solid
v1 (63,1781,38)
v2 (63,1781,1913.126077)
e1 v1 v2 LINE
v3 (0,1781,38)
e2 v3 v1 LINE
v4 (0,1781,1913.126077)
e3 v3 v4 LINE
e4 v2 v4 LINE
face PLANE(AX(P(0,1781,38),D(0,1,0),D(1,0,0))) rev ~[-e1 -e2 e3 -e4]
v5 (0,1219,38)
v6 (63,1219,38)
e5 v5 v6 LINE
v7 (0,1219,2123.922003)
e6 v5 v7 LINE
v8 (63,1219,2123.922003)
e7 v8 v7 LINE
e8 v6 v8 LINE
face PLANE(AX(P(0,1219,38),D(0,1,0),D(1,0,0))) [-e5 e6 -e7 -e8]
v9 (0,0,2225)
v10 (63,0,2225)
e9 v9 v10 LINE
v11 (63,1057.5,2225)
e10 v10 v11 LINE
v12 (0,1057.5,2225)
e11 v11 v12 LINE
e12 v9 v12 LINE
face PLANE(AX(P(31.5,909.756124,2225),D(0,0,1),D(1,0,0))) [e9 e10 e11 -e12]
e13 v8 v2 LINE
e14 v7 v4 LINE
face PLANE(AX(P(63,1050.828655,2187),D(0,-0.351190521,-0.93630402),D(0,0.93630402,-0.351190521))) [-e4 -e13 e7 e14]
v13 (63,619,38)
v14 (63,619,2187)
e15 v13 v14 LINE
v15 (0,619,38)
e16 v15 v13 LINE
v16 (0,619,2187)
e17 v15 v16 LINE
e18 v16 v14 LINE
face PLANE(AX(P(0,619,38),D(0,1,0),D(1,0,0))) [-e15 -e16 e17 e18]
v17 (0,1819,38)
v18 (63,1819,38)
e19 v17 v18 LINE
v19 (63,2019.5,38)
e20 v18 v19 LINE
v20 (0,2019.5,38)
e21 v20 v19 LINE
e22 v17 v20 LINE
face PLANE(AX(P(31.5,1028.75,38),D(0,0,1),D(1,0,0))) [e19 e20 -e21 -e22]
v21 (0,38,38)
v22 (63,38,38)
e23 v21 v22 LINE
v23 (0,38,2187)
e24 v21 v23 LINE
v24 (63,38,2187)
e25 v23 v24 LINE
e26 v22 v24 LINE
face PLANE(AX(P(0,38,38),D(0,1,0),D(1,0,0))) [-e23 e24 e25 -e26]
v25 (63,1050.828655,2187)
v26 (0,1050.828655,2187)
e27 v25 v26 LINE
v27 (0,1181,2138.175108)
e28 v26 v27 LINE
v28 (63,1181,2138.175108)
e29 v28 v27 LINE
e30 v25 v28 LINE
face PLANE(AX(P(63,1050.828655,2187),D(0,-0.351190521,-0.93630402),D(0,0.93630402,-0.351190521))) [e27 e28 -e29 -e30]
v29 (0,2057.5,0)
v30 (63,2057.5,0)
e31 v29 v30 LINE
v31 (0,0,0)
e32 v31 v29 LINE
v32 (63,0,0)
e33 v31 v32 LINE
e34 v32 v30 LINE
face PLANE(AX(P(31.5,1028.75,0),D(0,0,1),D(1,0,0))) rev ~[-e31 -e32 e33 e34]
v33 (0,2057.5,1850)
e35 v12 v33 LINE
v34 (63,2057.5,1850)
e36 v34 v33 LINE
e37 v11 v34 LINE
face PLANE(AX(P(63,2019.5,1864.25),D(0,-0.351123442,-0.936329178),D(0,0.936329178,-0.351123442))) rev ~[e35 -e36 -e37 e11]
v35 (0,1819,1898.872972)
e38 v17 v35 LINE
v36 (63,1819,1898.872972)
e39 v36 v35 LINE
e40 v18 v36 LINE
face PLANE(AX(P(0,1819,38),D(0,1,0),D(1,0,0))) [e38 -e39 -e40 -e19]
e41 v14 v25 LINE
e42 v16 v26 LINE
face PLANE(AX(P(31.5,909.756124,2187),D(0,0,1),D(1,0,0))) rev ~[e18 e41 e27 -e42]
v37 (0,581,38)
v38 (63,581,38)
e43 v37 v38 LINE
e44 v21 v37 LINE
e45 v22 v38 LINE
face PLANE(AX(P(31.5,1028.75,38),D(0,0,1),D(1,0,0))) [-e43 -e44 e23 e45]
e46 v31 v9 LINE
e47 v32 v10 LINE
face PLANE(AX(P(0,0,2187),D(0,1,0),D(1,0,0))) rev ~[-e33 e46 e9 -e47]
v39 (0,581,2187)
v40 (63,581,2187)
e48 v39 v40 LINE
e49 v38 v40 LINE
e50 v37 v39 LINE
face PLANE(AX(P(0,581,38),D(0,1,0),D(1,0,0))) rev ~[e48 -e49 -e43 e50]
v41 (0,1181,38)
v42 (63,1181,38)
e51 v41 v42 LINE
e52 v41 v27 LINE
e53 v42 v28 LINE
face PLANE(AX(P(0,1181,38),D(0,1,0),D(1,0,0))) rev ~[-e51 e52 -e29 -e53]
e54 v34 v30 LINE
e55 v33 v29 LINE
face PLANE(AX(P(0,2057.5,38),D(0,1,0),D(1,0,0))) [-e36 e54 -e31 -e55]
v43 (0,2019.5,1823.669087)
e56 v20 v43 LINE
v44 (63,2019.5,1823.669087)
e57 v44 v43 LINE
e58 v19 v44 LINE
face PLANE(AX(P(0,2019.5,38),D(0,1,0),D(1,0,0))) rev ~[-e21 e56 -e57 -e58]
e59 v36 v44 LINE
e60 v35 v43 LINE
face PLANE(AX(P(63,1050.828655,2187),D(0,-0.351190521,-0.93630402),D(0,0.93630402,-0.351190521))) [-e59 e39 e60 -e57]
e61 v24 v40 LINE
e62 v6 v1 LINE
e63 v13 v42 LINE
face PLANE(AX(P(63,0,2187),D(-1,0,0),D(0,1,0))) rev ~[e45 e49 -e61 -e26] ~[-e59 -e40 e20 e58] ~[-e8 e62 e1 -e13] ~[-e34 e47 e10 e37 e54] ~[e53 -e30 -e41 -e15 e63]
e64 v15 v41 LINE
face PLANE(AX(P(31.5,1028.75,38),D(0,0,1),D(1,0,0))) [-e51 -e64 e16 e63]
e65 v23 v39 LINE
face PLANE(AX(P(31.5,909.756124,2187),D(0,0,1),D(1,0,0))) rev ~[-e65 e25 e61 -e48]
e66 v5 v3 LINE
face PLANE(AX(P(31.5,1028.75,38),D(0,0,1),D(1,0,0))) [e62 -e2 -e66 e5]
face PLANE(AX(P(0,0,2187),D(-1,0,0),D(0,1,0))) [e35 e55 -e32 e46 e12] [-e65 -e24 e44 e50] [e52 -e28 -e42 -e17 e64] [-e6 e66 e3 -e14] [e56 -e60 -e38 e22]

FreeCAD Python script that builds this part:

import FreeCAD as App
import Part
import Sketcher
from FreeCAD import Vector


def add_polygon(sketch, points):
    """Adds a closed chain of lines whose ends are joined by coincident constraints."""
    first, n = sketch.GeometryCount, len(points)
    for a, b in zip(points, points[1:] + points[:1]):
        sketch.addGeometry(Part.LineSegment(App.Vector(*a, 0), App.Vector(*b, 0)), False)
    for i in range(n):
        sketch.addConstraint(Sketcher.Constraint("Coincident", first + i, 2, first + (i + 1) % n, 1))

doc = App.newDocument("Part")
body = doc.addObject("PartDesign::Body", "Body")

# Sketch on XY plane
sketch1 = body.newObject("Sketcher::SketchObject", "Sketch")
sketch1.AttachmentSupport = (doc.getObject("XY_Plane"), [""])
sketch1.MapMode = "FlatFace"
add_polygon(sketch1, [(0, 2058), (0, 0), (63, 0), (63, 2058)])  # lines 0-3
sketch1.addConstraint(Sketcher.Constraint("Vertical", 0))
sketch1.addConstraint(Sketcher.Constraint("Horizontal", 1))
sketch1.addConstraint(Sketcher.Constraint("Vertical", 2))
sketch1.addConstraint(Sketcher.Constraint("Horizontal", 3))
sketch1.addConstraint(Sketcher.Constraint("Coincident", 0, 2, -1, 1))
sketch1.addConstraint(Sketcher.Constraint("DistanceX", 1, 1, 1, 2, 63.0))
sketch1.addConstraint(Sketcher.Constraint("DistanceY", 0, 2, 0, 1, 2057.5))
pad1 = body.newObject("PartDesign::Pad", "Pad")
pad1.Profile = sketch1
pad1.Length = 38

# Sketch on XY plane
sketch2 = body.newObject("Sketcher::SketchObject", "Sketch001")
sketch2.AttachmentSupport = (doc.getObject("XY_Plane"), [""])
sketch2.MapMode = "FlatFace"
sketch2.AttachmentOffset = App.Placement(Vector(0, 0, 38), App.Rotation())
add_polygon(sketch2, [(0, 38), (0, 0), (63, 0), (63, 38)])  # lines 0-3
sketch2.addConstraint(Sketcher.Constraint("Vertical", 0))
sketch2.addConstraint(Sketcher.Constraint("Horizontal", 1))
sketch2.addConstraint(Sketcher.Constraint("Vertical", 2))
sketch2.addConstraint(Sketcher.Constraint("Horizontal", 3))
sketch2.addConstraint(Sketcher.Constraint("Coincident", 0, 2, -1, 1))
sketch2.addConstraint(Sketcher.Constraint("DistanceX", 1, 1, 1, 2, 63.0))
sketch2.addConstraint(Sketcher.Constraint("DistanceY", 0, 2, 0, 1, 38.0))
pad2 = body.newObject("PartDesign::Pad", "Pad001")
pad2.Profile = sketch2
pad2.Length = 2149

# Sketch on XY plane
sketch3 = body.newObject("Sketcher::SketchObject", "Sketch002")
sketch3.AttachmentSupport = (doc.getObject("XY_Plane"), [""])
sketch3.MapMode = "FlatFace"
sketch3.AttachmentOffset = App.Placement(Vector(0, 0, 38), App.Rotation())
add_polygon(sketch3, [(0, 619), (0, 581), (63, 581), (63, 619)])  # lines 0-3
sketch3.addConstraint(Sketcher.Constraint("Vertical", 0))
sketch3.addConstraint(Sketcher.Constraint("Horizontal", 1))
sketch3.addConstraint(Sketcher.Constraint("Vertical", 2))
sketch3.addConstraint(Sketcher.Constraint("Horizontal", 3))
sketch3.addConstraint(Sketcher.Constraint("PointOnObject", 0, 2, -2))
sketch3.addConstraint(Sketcher.Constraint("DistanceX", 1, 1, 1, 2, 63.0))
sketch3.addConstraint(Sketcher.Constraint("DistanceY", 0, 2, 0, 1, 38.0))
sketch3.addConstraint(Sketcher.Constraint("DistanceY", -1, 1, 0, 2, 581.0))
pad3 = body.newObject("PartDesign::Pad", "Pad002")
pad3.Profile = sketch3
pad3.Length = 2149

# Sketch on XY plane
sketch4 = body.newObject("Sketcher::SketchObject", "Sketch003")
sketch4.AttachmentSupport = (doc.getObject("XY_Plane"), [""])
sketch4.MapMode = "FlatFace"
sketch4.AttachmentOffset = App.Placement(Vector(0, 0, 38), App.Rotation())
add_polygon(sketch4, [(0, 1219), (0, 1181), (63, 1181), (63, 1219)])  # lines 0-3
sketch4.addConstraint(Sketcher.Constraint("Vertical", 0))
sketch4.addConstraint(Sketcher.Constraint("Horizontal", 1))
sketch4.addConstraint(Sketcher.Constraint("Vertical", 2))
sketch4.addConstraint(Sketcher.Constraint("Horizontal", 3))
sketch4.addConstraint(Sketcher.Constraint("PointOnObject", 0, 2, -2))
sketch4.addConstraint(Sketcher.Constraint("DistanceX", 1, 1, 1, 2, 63.0))
sketch4.addConstraint(Sketcher.Constraint("DistanceY", 0, 2, 0, 1, 38.0))
sketch4.addConstraint(Sketcher.Constraint("DistanceY", -1, 1, 0, 2, 1181.0))
pad4 = body.newObject("PartDesign::Pad", "Pad003")
pad4.Profile = sketch4
pad4.Length = 2149

# Sketch on XY plane
sketch5 = body.newObject("Sketcher::SketchObject", "Sketch004")
sketch5.AttachmentSupport = (doc.getObject("XY_Plane"), [""])
sketch5.MapMode = "FlatFace"
sketch5.AttachmentOffset = App.Placement(Vector(0, 0, 38), App.Rotation())
add_polygon(sketch5, [(0, 1819), (0, 1781), (63, 1781), (63, 1819)])  # lines 0-3
sketch5.addConstraint(Sketcher.Constraint("Vertical", 0))
sketch5.addConstraint(Sketcher.Constraint("Horizontal", 1))
sketch5.addConstraint(Sketcher.Constraint("Vertical", 2))
sketch5.addConstraint(Sketcher.Constraint("Horizontal", 3))
sketch5.addConstraint(Sketcher.Constraint("PointOnObject", 0, 2, -2))
sketch5.addConstraint(Sketcher.Constraint("DistanceX", 1, 1, 1, 2, 63.0))
sketch5.addConstraint(Sketcher.Constraint("DistanceY", 0, 2, 0, 1, 38.0))
sketch5.addConstraint(Sketcher.Constraint("DistanceY", -1, 1, 0, 2, 1781.0))
pad5 = body.newObject("PartDesign::Pad", "Pad004")
pad5.Profile = sketch5
pad5.Length = 2149

# Sketch on XY plane
sketch6 = body.newObject("Sketcher::SketchObject", "Sketch005")
sketch6.AttachmentSupport = (doc.getObject("XY_Plane"), [""])
sketch6.MapMode = "FlatFace"
sketch6.AttachmentOffset = App.Placement(Vector(0, 0, 38), App.Rotation())
add_polygon(sketch6, [(0, 2058), (0, 2020), (63, 2020), (63, 2058)])  # lines 0-3
sketch6.addConstraint(Sketcher.Constraint("Vertical", 0))
sketch6.addConstraint(Sketcher.Constraint("Horizontal", 1))
sketch6.addConstraint(Sketcher.Constraint("Vertical", 2))
sketch6.addConstraint(Sketcher.Constraint("Horizontal", 3))
sketch6.addConstraint(Sketcher.Constraint("PointOnObject", 0, 2, -2))
sketch6.addConstraint(Sketcher.Constraint("DistanceX", 1, 1, 1, 2, 63.0))
sketch6.addConstraint(Sketcher.Constraint("DistanceY", 0, 2, 0, 1, 38.0))
sketch6.addConstraint(Sketcher.Constraint("DistanceY", -1, 1, 0, 2, 2019.5))
pad6 = body.newObject("PartDesign::Pad", "Pad005")
pad6.Profile = sketch6
pad6.Length = 2149

# Sketch on XY plane
sketch7 = body.newObject("Sketcher::SketchObject", "Sketch006")
sketch7.AttachmentSupport = (doc.getObject("XY_Plane"), [""])
sketch7.MapMode = "FlatFace"
sketch7.AttachmentOffset = App.Placement(Vector(0, 0, 2187), App.Rotation())
add_polygon(sketch7, [(0, 1820), (0, 0), (63, 0), (63, 1820)])  # lines 0-3
sketch7.addConstraint(Sketcher.Constraint("Vertical", 0))
sketch7.addConstraint(Sketcher.Constraint("Horizontal", 1))
sketch7.addConstraint(Sketcher.Constraint("Vertical", 2))
sketch7.addConstraint(Sketcher.Constraint("Horizontal", 3))
sketch7.addConstraint(Sketcher.Constraint("Coincident", 0, 2, -1, 1))
sketch7.addConstraint(Sketcher.Constraint("DistanceX", 1, 1, 1, 2, 63.0))
sketch7.addConstraint(Sketcher.Constraint("DistanceY", 0, 2, 0, 1, 1819.512248))
pad7 = body.newObject("PartDesign::Pad", "Pad006")
pad7.Profile = sketch7
pad7.Length = 38

# Sketch on YZ plane
sketch8 = body.newObject("Sketcher::SketchObject", "Sketch007")
sketch8.AttachmentSupport = (doc.getObject("YZ_Plane"), [""])
sketch8.MapMode = "FlatFace"
sketch8.AttachmentOffset = App.Placement(Vector(0, 0, 63), App.Rotation())
add_polygon(sketch8, [(1058, 2225), (1051, 2187), (2058, 1809), (2058, 1850)])  # lines 0-3
sketch8.addConstraint(Sketcher.Constraint("Vertical", 2))
sketch8.addConstraint(Sketcher.Constraint("DistanceY", -1, 1, 0, 2, 2187.0))
sketch8.addConstraint(Sketcher.Constraint("DistanceY", -1, 1, 2, 2, 1850.0))
sketch8.addConstraint(Sketcher.Constraint("DistanceY", -1, 1, 3, 2, 2225.0))
sketch8.addConstraint(Sketcher.Constraint("DistanceX", 3, 2, 2, 2, 1000.0))
sketch8.addConstraint(Sketcher.Constraint("DistanceX", -1, 1, 1, 2, 2057.5))
sketch8.addConstraint(Sketcher.Constraint("DistanceY", 2, 1, 2, 2, 40.584018))
sketch8.addConstraint(Sketcher.Constraint("Distance", 0, 38.581172))
pad8 = body.newObject("PartDesign::Pad", "Pad007")
pad8.Profile = sketch8
pad8.Length = 63
pad8.Reversed = True

# Sketch on YZ plane
sketch9 = body.newObject("Sketcher::SketchObject", "Sketch008")
sketch9.AttachmentSupport = (doc.getObject("YZ_Plane"), [""])
sketch9.MapMode = "FlatFace"
sketch9.AttachmentOffset = App.Placement(Vector(0, 0, 63), App.Rotation())
add_polygon(sketch9, [(1781, 2187), (1781, 1953.7), (1819, 1939.4), (1819, 2187), (1819.5, 2187), (1819.5, 2225), (1057.5, 2225), (1158.8, 2187), (1181, 2187), (1181, 2178.7), (1219, 2164.4), (1219, 2187)])  # lines 0-11
add_polygon(sketch9, [(2019.5, 2187), (2019.5, 1864.2), (2057.5, 1850), (2057.5, 2187)])  # lines 12-15
sketch9.addConstraint(Sketcher.Constraint("Vertical", 0))
sketch9.addConstraint(Sketcher.Constraint("Vertical", 2))
sketch9.addConstraint(Sketcher.Constraint("Horizontal", 3))
sketch9.addConstraint(Sketcher.Constraint("Vertical", 4))
sketch9.addConstraint(Sketcher.Constraint("Horizontal", 5))
sketch9.addConstraint(Sketcher.Constraint("Horizontal", 7))
sketch9.addConstraint(Sketcher.Constraint("Vertical", 8))
sketch9.addConstraint(Sketcher.Constraint("Vertical", 10))
sketch9.addConstraint(Sketcher.Constraint("Horizontal", 11))
sketch9.addConstraint(Sketcher.Constraint("Vertical", 12))
sketch9.addConstraint(Sketcher.Constraint("Vertical", 14))
sketch9.addConstraint(Sketcher.Constraint("Horizontal", 15))
sketch9.addConstraint(Sketcher.Constraint("Parallel", 1, 6))
sketch9.addConstraint(Sketcher.Constraint("Parallel", 6, 9))
sketch9.addConstraint(Sketcher.Constraint("Parallel", 9, 13))
sketch9.addConstraint(Sketcher.Constraint("Horizontal", 3, 2, 6, 2))
sketch9.addConstraint(Sketcher.Constraint("Horizontal", 7, 2, 10, 2))
sketch9.addConstraint(Sketcher.Constraint("Horizontal", 11, 2, 14, 2))
sketch9.addConstraint(Sketcher.Constraint("Equal", 15, 4))
sketch9.addConstraint(Sketcher.Constraint("Equal", 1, 9))
sketch9.addConstraint(Sketcher.Constraint("Equal", 9, 13))
sketch9.addConstraint(Sketcher.Constraint("DistanceX", 11, 1, 11, 2, 562.0))
sketch9.addConstraint(Sketcher.Constraint("DistanceX", 15, 2, 15, 1, 38.0))
sketch9.addConstraint(Sketcher.Constraint("DistanceY", 14, 1, 14, 2, 337.0))
sketch9.addConstraint(Sketcher.Constraint("DistanceX", -1, 1, 0, 2, 1781.0))
sketch9.addConstraint(Sketcher.Constraint("DistanceY", -1, 1, 2, 2, 2187.0))
sketch9.addConstraint(Sketcher.Constraint("DistanceY", 12, 2, 12, 1, 322.75))
sketch9.addConstraint(Sketcher.Constraint("DistanceX", -1, 1, 5, 2, 1057.5))
sketch9.addConstraint(Sketcher.Constraint("DistanceX", -1, 1, 12, 2, 2019.5))
sketch9.addConstraint(Sketcher.Constraint("DistanceY", 0, 2, 9, 2, 210.75))
sketch9.addConstraint(Sketcher.Constraint("DistanceY", 0, 2, 0, 1, 233.3125))
sketch9.addConstraint(Sketcher.Constraint("DistanceX", 3, 1, 3, 2, 0.512248))
pocket1 = body.newObject("PartDesign::Pocket", "Pocket")
pocket1.Profile = sketch9
pocket1.Length = 63

doc.recompute()
